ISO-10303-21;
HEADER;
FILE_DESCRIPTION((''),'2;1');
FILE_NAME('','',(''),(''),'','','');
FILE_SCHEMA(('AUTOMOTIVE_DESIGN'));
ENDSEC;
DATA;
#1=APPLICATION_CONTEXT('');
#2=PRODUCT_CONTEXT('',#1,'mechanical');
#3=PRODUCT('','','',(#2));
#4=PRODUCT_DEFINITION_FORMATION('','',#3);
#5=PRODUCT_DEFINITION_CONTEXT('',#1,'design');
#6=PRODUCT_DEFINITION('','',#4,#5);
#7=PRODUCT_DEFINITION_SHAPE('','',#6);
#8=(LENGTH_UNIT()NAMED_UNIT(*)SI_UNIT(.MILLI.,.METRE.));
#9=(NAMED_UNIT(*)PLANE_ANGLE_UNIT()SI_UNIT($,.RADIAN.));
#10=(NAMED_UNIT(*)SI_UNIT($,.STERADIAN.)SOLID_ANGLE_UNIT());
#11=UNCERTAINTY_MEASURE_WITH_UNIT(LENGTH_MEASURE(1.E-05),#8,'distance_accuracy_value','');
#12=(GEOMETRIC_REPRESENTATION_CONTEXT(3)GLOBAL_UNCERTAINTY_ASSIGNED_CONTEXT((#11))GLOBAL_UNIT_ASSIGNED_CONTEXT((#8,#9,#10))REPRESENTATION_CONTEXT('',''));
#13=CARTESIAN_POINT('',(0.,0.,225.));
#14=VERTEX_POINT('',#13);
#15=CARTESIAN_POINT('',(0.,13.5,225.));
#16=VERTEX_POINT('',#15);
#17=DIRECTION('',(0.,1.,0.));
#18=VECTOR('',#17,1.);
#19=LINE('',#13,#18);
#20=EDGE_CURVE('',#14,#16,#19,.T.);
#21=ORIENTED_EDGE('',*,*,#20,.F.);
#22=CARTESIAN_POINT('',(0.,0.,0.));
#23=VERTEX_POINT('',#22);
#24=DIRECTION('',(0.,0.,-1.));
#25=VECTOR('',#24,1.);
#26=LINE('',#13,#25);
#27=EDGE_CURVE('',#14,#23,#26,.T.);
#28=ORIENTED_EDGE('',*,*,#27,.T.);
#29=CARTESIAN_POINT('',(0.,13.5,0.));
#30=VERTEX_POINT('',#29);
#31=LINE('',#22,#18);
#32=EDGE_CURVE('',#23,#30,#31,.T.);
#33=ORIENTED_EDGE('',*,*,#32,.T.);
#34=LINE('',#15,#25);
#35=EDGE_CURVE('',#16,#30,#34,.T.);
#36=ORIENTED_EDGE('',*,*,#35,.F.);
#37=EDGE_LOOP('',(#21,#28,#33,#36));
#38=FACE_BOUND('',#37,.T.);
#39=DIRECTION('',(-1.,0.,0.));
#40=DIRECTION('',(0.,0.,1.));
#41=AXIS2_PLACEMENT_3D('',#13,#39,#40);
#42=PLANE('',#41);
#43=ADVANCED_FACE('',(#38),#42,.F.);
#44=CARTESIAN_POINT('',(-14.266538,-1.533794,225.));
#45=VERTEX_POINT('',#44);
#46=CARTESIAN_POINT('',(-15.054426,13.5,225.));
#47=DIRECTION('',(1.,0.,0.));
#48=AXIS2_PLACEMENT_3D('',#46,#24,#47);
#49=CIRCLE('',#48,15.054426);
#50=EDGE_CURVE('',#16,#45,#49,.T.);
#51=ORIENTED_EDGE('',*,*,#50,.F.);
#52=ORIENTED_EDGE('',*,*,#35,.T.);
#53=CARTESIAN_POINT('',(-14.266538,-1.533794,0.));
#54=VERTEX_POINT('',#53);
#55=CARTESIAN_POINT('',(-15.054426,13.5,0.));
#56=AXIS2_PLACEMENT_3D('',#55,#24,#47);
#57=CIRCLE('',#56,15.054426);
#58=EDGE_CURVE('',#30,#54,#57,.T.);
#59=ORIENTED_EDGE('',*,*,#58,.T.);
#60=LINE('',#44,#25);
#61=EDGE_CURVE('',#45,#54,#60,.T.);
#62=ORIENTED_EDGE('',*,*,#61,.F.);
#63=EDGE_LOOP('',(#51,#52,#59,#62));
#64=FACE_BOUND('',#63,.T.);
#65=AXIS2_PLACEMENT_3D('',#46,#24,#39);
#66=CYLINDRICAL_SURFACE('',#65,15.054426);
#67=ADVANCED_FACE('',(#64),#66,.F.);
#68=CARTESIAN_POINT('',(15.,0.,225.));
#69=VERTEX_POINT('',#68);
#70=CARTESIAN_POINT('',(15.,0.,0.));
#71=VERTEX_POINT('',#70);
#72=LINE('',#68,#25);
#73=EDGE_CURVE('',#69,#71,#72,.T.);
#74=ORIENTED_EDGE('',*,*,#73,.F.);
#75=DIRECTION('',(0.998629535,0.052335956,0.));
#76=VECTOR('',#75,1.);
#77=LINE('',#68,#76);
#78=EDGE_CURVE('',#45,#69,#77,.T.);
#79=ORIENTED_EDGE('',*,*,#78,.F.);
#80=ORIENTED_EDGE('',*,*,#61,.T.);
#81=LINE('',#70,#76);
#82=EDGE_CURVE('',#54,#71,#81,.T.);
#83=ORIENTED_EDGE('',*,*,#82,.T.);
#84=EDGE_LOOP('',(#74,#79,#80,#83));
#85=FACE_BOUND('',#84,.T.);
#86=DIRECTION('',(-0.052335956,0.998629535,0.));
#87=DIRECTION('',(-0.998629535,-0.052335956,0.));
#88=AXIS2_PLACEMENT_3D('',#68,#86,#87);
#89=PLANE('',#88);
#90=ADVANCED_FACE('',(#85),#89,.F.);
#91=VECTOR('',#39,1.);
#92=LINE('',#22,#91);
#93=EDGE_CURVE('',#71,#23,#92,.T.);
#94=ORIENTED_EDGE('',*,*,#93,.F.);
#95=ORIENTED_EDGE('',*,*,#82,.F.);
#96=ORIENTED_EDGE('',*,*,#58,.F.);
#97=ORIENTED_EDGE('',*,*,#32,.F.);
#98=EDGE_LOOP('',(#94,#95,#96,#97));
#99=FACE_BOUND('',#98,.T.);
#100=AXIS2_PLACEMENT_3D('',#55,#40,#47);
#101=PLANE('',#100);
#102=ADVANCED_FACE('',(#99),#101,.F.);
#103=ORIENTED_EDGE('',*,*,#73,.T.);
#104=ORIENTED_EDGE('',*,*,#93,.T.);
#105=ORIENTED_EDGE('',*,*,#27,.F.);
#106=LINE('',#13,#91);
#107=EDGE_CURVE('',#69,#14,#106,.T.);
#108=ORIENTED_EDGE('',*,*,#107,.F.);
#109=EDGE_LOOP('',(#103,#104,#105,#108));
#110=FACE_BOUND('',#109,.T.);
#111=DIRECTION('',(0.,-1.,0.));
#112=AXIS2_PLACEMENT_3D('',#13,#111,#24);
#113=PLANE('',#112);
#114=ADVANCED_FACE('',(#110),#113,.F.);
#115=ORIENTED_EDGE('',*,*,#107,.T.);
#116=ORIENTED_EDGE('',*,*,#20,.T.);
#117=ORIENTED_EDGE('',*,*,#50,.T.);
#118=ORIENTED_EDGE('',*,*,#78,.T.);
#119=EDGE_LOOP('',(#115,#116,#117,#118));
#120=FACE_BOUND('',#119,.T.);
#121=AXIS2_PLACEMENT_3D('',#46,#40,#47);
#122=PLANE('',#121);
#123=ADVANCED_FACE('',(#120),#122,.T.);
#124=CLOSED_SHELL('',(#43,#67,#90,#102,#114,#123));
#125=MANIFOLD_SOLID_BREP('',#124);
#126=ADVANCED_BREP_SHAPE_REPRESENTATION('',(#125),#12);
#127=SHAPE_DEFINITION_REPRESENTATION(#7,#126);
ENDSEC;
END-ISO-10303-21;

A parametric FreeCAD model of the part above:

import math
import FreeCAD as App
import Part
import Sketcher
from FreeCAD import Vector
Q = App.Units.Quantity

doc = App.newDocument("Part")
body = doc.addObject("PartDesign::Body", "Body")

# Sketch on XY plane
sketch1 = doc.addObject("Sketcher::SketchObject", "Sketch")
body.addObject(sketch1)
sketch1.AttachmentSupport = (doc.XY_Plane, [""])
sketch1.MapMode = "FlatFace"
sketch1.addGeometry([
    Part.LineSegment(Vector(0, 0, 0), Vector(0, 14, 0)),
    Part.ArcOfCircle(Part.Circle(Vector(-15, 14, 0), Vector(0, 0, 1), 15), math.radians(-87), math.radians(0)),
    Part.LineSegment(Vector(-14, -2, 0), Vector(15, 0, 0)),
    Part.LineSegment(Vector(15, 0, 0), Vector(0, 0, 0)),
], False)
sketch1.addConstraint([
    Sketcher.Constraint("Tangent", 0, 2, 1, 2),
    Sketcher.Constraint("Tangent", 1, 1, 2, 1),
    Sketcher.Constraint("Coincident", 2, 2, 3, 1),
    Sketcher.Constraint("Coincident", 3, 2, 0, 1),
    Sketcher.Constraint("Vertical", 0),
    Sketcher.Constraint("Horizontal", 3),
    Sketcher.Constraint("Coincident", 3, 2, -1, 1),
    Sketcher.Constraint("DistanceX", 3, 2, 3, 1, Q("15 mm")),
    Sketcher.Constraint("Angle", 2, Q("3 deg")),
    Sketcher.Constraint("DistanceY", 0, 1, 0, 2, Q("13.5 mm")),
])
pad1 = doc.addObject("PartDesign::Pad", "Pad")
body.addObject(pad1)
pad1.Profile = sketch1
pad1.Length = 225

doc.recompute()
